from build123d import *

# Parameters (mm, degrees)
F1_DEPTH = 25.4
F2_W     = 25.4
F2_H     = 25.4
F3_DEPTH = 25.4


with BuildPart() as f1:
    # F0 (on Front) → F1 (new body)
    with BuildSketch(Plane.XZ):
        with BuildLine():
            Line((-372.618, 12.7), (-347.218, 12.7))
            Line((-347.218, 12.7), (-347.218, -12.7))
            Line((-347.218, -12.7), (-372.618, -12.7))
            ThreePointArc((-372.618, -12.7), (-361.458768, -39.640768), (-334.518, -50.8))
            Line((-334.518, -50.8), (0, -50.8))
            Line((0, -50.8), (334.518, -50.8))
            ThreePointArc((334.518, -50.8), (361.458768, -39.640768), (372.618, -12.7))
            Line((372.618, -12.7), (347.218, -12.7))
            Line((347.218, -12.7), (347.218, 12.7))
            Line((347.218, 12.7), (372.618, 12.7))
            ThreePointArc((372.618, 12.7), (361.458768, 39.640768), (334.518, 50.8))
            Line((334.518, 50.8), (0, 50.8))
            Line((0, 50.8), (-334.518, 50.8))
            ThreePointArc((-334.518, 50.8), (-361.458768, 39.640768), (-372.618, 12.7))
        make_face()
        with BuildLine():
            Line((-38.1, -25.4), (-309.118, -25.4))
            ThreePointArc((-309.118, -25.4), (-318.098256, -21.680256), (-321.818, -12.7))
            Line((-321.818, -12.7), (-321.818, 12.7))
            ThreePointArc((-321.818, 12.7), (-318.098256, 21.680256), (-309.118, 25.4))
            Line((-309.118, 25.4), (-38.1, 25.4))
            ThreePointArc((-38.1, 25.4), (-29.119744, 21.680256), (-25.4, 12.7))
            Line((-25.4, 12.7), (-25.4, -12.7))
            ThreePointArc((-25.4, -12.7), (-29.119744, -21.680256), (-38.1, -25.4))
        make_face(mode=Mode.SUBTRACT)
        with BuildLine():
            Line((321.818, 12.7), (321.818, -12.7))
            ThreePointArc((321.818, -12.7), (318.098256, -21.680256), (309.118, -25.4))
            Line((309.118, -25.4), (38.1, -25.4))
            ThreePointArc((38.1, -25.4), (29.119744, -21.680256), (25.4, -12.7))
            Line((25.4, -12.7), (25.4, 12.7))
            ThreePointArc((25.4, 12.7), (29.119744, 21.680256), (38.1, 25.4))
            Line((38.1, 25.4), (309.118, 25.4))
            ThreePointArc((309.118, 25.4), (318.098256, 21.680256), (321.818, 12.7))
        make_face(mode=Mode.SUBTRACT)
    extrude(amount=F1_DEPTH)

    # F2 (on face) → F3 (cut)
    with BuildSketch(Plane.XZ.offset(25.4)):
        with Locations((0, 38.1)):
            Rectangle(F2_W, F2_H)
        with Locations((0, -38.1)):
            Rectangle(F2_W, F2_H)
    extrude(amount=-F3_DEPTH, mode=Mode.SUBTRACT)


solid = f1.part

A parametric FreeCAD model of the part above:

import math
import FreeCAD as App
import Part
import Sketcher

V = App.Vector
Q = App.Units.Quantity


def add_polygon(sketch, points):
    """Adds a closed chain of lines whose ends are joined by coincident constraints."""
    first, n = sketch.GeometryCount, len(points)
    for a, b in zip(points, points[1:] + points[:1]):
        sketch.addGeometry(Part.LineSegment(App.Vector(*a, 0), App.Vector(*b, 0)), False)
    for i in range(n):
        sketch.addConstraint(Sketcher.Constraint("Coincident", first + i, 2, first + (i + 1) % n, 1))

doc = App.newDocument("Part")
body = doc.addObject("PartDesign::Body", "Body")

sketch1 = doc.addObject("Sketcher::SketchObject", "Sketch")
body.addObject(sketch1)
sketch1.AttachmentSupport = (doc.XZ_Plane, [""])
sketch1.MapMode = "FlatFace"
sketch1.addGeometry([
    Part.LineSegment(V(-373, 13, 0), V(-347, 13, 0)),
    Part.LineSegment(V(-347, 13, 0), V(-347, -13, 0)),
    Part.LineSegment(V(-347, -13, 0), V(-373, -13, 0)),
    Part.ArcOfCircle(Part.Circle(V(-335, -13, 0), V(0, 0, 1), 38), math.radians(-180), math.radians(-90)),
    Part.LineSegment(V(-335, -51, 0), V(335, -51, 0)),
    Part.ArcOfCircle(Part.Circle(V(335, -13, 0), V(0, 0, 1), 38), math.radians(-90), math.radians(0)),
    Part.LineSegment(V(373, -13, 0), V(347, -13, 0)),
    Part.LineSegment(V(347, -13, 0), V(347, 13, 0)),
    Part.LineSegment(V(347, 13, 0), V(373, 13, 0)),
    Part.ArcOfCircle(Part.Circle(V(335, 13, 0), V(0, 0, 1), 38), math.radians(0), math.radians(90)),
    Part.LineSegment(V(335, 51, 0), V(-335, 51, 0)),
    Part.ArcOfCircle(Part.Circle(V(-335, 13, 0), V(0, 0, 1), 38), math.radians(90), math.radians(180)),
    Part.ArcOfCircle(Part.Circle(V(-38, -13, 0), V(0, 0, 1), 13), math.radians(-90), math.radians(0)),
    Part.LineSegment(V(-38, -25, 0), V(-309, -25, 0)),
    Part.ArcOfCircle(Part.Circle(V(-309, -13, 0), V(0, 0, 1), 13), math.radians(-180), math.radians(-90)),
    Part.LineSegment(V(-322, -13, 0), V(-322, 13, 0)),
    Part.ArcOfCircle(Part.Circle(V(-309, 13, 0), V(0, 0, 1), 13), math.radians(90), math.radians(180)),
    Part.LineSegment(V(-309, 25, 0), V(-38, 25, 0)),
    Part.ArcOfCircle(Part.Circle(V(-38, 13, 0), V(0, 0, 1), 13), math.radians(0), math.radians(90)),
    Part.LineSegment(V(-25, 13, 0), V(-25, -13, 0)),
    Part.ArcOfCircle(Part.Circle(V(309, 13, 0), V(0, 0, 1), 13), math.radians(0), math.radians(90)),
    Part.LineSegment(V(322, 13, 0), V(322, -13, 0)),
    Part.ArcOfCircle(Part.Circle(V(309, -13, 0), V(0, 0, 1), 13), math.radians(-90), math.radians(0)),
    Part.LineSegment(V(309, -25, 0), V(38, -25, 0)),
    Part.ArcOfCircle(Part.Circle(V(38, -13, 0), V(0, 0, 1), 13), math.radians(-180), math.radians(-90)),
    Part.LineSegment(V(25, -13, 0), V(25, 13, 0)),
    Part.ArcOfCircle(Part.Circle(V(38, 13, 0), V(0, 0, 1), 13), math.radians(90), math.radians(180)),
    Part.LineSegment(V(38, 25, 0), V(309, 25, 0)),
], False)
sketch1.addConstraint([
    Sketcher.Constraint("Coincident", 0, 2, 1, 1),
    Sketcher.Constraint("Coincident", 1, 2, 2, 1),
    Sketcher.Constraint("Coincident", 2, 2, 3, 1),
    Sketcher.Constraint("Tangent", 3, 2, 4, 1),
    Sketcher.Constraint("Tangent", 4, 2, 5, 1),
    Sketcher.Constraint("Coincident", 5, 2, 6, 1),
    Sketcher.Constraint("Coincident", 6, 2, 7, 1),
    Sketcher.Constraint("Coincident", 7, 2, 8, 1),
    Sketcher.Constraint("Coincident", 8, 2, 9, 1),
    Sketcher.Constraint("Tangent", 9, 2, 10, 1),
    Sketcher.Constraint("Tangent", 10, 2, 11, 1),
    Sketcher.Constraint("Coincident", 11, 2, 0, 1),
    Sketcher.Constraint("Tangent", 12, 1, 13, 1),
    Sketcher.Constraint("Tangent", 13, 2, 14, 2),
    Sketcher.Constraint("Tangent", 14, 1, 15, 1),
    Sketcher.Constraint("Tangent", 15, 2, 16, 2),
    Sketcher.Constraint("Tangent", 16, 1, 17, 1),
    Sketcher.Constraint("Tangent", 17, 2, 18, 2),
    Sketcher.Constraint("Tangent", 18, 1, 19, 1),
    Sketcher.Constraint("Tangent", 19, 2, 12, 2),
    Sketcher.Constraint("Tangent", 20, 1, 21, 1),
    Sketcher.Constraint("Tangent", 21, 2, 22, 2),
    Sketcher.Constraint("Tangent", 22, 1, 23, 1),
    Sketcher.Constraint("Tangent", 23, 2, 24, 2),
    Sketcher.Constraint("Tangent", 24, 1, 25, 1),
    Sketcher.Constraint("Tangent", 25, 2, 26, 2),
    Sketcher.Constraint("Tangent", 26, 1, 27, 1),
    Sketcher.Constraint("Tangent", 27, 2, 20, 2),
    Sketcher.Constraint("Horizontal", 0),
    Sketcher.Constraint("Vertical", 1),
    Sketcher.Constraint("Horizontal", 2),
    Sketcher.Constraint("Horizontal", 4),
    Sketcher.Constraint("Horizontal", 6),
    Sketcher.Constraint("Vertical", 7),
    Sketcher.Constraint("Horizontal", 8),
    Sketcher.Constraint("Horizontal", 10),
    Sketcher.Constraint("Horizontal", 13),
    Sketcher.Constraint("Vertical", 15),
    Sketcher.Constraint("Horizontal", 17),
    Sketcher.Constraint("Vertical", 19),
    Sketcher.Constraint("Vertical", 21),
    Sketcher.Constraint("Horizontal", 23),
    Sketcher.Constraint("Vertical", 25),
    Sketcher.Constraint("Horizontal", 27),
    Sketcher.Constraint("Equal", 3, 5),
    Sketcher.Constraint("Equal", 5, 9),
    Sketcher.Constraint("Equal", 9, 11),
    Sketcher.Constraint("Equal", 12, 14),
    Sketcher.Constraint("Equal", 14, 16),
    Sketcher.Constraint("Equal", 16, 18),
    Sketcher.Constraint("Equal", 18, 20),
    Sketcher.Constraint("Equal", 20, 22),
    Sketcher.Constraint("Equal", 22, 24),
    Sketcher.Constraint("Equal", 24, 26),
    Sketcher.Constraint("Symmetric", 3, 3, 9, 3, -1, 1),
    Sketcher.Constraint("Symmetric", 14, 3, 20, 3, -1, 1),
    Sketcher.Constraint("Symmetric", 18, 3, 24, 3, -1, 1),
    Sketcher.Constraint("Symmetric", 0, 2, 6, 2, -1, 1),
    Sketcher.Constraint("Symmetric", 2, 2, 5, 2, -2),
    Sketcher.Constraint("Symmetric", 8, 2, 11, 2, -2),
    Sketcher.Constraint("Horizontal", 5, 3, 12, 3),
    Sketcher.Constraint("Horizontal", 11, 3, 16, 3),
    Sketcher.Constraint("Horizontal", 26, 3, 0, 2),
    Sketcher.Constraint("Equal", 8, 1),
    Sketcher.Constraint("Radius", 3, Q("1.5 in")),
    Sketcher.Constraint("Radius", 12, Q("0.5 in")),
    Sketcher.Constraint("DistanceX", 0, 1, 0, 2, Q("1 in")),
    Sketcher.Constraint("DistanceX", 18, 1, -1, 1, Q("1 in")),
    Sketcher.Constraint("DistanceX", 3, 3, 14, 3, Q("1 in")),
    Sketcher.Constraint("DistanceX", 4, 1, 4, 2, Q("26.34 in")),
])
pad1 = doc.addObject("PartDesign::Pad", "Pad")
body.addObject(pad1)
pad1.Profile = sketch1
pad1.Length = Q("1 in")

sketch2 = doc.addObject("Sketcher::SketchObject", "Sketch001")
body.addObject(sketch2)
sketch2.AttachmentSupport = (doc.XZ_Plane, [""])
sketch2.MapMode = "FlatFace"
sketch2.AttachmentOffset = App.Placement(V(0, 0, 1 * 25.4), App.Rotation())
add_polygon(sketch2, [(-13, 51), (-13, 25), (13, 25), (13, 51)])
add_polygon(sketch2, [(-13, -25), (-13, -51), (13, -51), (13, -25)])
sketch2.addConstraint([
    Sketcher.Constraint("Vertical", 0),
    Sketcher.Constraint("Horizontal", 1),
    Sketcher.Constraint("Vertical", 2),
    Sketcher.Constraint("Horizontal", 3),
    Sketcher.Constraint("Vertical", 4),
    Sketcher.Constraint("Horizontal", 5),
    Sketcher.Constraint("Vertical", 6),
    Sketcher.Constraint("Horizontal", 7),
    Sketcher.Constraint("Symmetric", 2, 2, 4, 2, -1, 1),
    Sketcher.Constraint("Symmetric", 0, 2, 6, 2, -1, 1),
    Sketcher.Constraint("Vertical", 3, 2, 4, 2),
    Sketcher.Constraint("Equal", 7, 0),
    Sketcher.Constraint("DistanceX", 1, 1, 1, 2, Q("1 in")),
    Sketcher.Constraint("DistanceY", -1, 1, 0, 2, Q("1 in")),
])
pocket1 = doc.addObject("PartDesign::Pocket", "Pocket")
body.addObject(pocket1)
pocket1.Profile = sketch2
pocket1.Length = Q("1 in")

doc.recompute()
